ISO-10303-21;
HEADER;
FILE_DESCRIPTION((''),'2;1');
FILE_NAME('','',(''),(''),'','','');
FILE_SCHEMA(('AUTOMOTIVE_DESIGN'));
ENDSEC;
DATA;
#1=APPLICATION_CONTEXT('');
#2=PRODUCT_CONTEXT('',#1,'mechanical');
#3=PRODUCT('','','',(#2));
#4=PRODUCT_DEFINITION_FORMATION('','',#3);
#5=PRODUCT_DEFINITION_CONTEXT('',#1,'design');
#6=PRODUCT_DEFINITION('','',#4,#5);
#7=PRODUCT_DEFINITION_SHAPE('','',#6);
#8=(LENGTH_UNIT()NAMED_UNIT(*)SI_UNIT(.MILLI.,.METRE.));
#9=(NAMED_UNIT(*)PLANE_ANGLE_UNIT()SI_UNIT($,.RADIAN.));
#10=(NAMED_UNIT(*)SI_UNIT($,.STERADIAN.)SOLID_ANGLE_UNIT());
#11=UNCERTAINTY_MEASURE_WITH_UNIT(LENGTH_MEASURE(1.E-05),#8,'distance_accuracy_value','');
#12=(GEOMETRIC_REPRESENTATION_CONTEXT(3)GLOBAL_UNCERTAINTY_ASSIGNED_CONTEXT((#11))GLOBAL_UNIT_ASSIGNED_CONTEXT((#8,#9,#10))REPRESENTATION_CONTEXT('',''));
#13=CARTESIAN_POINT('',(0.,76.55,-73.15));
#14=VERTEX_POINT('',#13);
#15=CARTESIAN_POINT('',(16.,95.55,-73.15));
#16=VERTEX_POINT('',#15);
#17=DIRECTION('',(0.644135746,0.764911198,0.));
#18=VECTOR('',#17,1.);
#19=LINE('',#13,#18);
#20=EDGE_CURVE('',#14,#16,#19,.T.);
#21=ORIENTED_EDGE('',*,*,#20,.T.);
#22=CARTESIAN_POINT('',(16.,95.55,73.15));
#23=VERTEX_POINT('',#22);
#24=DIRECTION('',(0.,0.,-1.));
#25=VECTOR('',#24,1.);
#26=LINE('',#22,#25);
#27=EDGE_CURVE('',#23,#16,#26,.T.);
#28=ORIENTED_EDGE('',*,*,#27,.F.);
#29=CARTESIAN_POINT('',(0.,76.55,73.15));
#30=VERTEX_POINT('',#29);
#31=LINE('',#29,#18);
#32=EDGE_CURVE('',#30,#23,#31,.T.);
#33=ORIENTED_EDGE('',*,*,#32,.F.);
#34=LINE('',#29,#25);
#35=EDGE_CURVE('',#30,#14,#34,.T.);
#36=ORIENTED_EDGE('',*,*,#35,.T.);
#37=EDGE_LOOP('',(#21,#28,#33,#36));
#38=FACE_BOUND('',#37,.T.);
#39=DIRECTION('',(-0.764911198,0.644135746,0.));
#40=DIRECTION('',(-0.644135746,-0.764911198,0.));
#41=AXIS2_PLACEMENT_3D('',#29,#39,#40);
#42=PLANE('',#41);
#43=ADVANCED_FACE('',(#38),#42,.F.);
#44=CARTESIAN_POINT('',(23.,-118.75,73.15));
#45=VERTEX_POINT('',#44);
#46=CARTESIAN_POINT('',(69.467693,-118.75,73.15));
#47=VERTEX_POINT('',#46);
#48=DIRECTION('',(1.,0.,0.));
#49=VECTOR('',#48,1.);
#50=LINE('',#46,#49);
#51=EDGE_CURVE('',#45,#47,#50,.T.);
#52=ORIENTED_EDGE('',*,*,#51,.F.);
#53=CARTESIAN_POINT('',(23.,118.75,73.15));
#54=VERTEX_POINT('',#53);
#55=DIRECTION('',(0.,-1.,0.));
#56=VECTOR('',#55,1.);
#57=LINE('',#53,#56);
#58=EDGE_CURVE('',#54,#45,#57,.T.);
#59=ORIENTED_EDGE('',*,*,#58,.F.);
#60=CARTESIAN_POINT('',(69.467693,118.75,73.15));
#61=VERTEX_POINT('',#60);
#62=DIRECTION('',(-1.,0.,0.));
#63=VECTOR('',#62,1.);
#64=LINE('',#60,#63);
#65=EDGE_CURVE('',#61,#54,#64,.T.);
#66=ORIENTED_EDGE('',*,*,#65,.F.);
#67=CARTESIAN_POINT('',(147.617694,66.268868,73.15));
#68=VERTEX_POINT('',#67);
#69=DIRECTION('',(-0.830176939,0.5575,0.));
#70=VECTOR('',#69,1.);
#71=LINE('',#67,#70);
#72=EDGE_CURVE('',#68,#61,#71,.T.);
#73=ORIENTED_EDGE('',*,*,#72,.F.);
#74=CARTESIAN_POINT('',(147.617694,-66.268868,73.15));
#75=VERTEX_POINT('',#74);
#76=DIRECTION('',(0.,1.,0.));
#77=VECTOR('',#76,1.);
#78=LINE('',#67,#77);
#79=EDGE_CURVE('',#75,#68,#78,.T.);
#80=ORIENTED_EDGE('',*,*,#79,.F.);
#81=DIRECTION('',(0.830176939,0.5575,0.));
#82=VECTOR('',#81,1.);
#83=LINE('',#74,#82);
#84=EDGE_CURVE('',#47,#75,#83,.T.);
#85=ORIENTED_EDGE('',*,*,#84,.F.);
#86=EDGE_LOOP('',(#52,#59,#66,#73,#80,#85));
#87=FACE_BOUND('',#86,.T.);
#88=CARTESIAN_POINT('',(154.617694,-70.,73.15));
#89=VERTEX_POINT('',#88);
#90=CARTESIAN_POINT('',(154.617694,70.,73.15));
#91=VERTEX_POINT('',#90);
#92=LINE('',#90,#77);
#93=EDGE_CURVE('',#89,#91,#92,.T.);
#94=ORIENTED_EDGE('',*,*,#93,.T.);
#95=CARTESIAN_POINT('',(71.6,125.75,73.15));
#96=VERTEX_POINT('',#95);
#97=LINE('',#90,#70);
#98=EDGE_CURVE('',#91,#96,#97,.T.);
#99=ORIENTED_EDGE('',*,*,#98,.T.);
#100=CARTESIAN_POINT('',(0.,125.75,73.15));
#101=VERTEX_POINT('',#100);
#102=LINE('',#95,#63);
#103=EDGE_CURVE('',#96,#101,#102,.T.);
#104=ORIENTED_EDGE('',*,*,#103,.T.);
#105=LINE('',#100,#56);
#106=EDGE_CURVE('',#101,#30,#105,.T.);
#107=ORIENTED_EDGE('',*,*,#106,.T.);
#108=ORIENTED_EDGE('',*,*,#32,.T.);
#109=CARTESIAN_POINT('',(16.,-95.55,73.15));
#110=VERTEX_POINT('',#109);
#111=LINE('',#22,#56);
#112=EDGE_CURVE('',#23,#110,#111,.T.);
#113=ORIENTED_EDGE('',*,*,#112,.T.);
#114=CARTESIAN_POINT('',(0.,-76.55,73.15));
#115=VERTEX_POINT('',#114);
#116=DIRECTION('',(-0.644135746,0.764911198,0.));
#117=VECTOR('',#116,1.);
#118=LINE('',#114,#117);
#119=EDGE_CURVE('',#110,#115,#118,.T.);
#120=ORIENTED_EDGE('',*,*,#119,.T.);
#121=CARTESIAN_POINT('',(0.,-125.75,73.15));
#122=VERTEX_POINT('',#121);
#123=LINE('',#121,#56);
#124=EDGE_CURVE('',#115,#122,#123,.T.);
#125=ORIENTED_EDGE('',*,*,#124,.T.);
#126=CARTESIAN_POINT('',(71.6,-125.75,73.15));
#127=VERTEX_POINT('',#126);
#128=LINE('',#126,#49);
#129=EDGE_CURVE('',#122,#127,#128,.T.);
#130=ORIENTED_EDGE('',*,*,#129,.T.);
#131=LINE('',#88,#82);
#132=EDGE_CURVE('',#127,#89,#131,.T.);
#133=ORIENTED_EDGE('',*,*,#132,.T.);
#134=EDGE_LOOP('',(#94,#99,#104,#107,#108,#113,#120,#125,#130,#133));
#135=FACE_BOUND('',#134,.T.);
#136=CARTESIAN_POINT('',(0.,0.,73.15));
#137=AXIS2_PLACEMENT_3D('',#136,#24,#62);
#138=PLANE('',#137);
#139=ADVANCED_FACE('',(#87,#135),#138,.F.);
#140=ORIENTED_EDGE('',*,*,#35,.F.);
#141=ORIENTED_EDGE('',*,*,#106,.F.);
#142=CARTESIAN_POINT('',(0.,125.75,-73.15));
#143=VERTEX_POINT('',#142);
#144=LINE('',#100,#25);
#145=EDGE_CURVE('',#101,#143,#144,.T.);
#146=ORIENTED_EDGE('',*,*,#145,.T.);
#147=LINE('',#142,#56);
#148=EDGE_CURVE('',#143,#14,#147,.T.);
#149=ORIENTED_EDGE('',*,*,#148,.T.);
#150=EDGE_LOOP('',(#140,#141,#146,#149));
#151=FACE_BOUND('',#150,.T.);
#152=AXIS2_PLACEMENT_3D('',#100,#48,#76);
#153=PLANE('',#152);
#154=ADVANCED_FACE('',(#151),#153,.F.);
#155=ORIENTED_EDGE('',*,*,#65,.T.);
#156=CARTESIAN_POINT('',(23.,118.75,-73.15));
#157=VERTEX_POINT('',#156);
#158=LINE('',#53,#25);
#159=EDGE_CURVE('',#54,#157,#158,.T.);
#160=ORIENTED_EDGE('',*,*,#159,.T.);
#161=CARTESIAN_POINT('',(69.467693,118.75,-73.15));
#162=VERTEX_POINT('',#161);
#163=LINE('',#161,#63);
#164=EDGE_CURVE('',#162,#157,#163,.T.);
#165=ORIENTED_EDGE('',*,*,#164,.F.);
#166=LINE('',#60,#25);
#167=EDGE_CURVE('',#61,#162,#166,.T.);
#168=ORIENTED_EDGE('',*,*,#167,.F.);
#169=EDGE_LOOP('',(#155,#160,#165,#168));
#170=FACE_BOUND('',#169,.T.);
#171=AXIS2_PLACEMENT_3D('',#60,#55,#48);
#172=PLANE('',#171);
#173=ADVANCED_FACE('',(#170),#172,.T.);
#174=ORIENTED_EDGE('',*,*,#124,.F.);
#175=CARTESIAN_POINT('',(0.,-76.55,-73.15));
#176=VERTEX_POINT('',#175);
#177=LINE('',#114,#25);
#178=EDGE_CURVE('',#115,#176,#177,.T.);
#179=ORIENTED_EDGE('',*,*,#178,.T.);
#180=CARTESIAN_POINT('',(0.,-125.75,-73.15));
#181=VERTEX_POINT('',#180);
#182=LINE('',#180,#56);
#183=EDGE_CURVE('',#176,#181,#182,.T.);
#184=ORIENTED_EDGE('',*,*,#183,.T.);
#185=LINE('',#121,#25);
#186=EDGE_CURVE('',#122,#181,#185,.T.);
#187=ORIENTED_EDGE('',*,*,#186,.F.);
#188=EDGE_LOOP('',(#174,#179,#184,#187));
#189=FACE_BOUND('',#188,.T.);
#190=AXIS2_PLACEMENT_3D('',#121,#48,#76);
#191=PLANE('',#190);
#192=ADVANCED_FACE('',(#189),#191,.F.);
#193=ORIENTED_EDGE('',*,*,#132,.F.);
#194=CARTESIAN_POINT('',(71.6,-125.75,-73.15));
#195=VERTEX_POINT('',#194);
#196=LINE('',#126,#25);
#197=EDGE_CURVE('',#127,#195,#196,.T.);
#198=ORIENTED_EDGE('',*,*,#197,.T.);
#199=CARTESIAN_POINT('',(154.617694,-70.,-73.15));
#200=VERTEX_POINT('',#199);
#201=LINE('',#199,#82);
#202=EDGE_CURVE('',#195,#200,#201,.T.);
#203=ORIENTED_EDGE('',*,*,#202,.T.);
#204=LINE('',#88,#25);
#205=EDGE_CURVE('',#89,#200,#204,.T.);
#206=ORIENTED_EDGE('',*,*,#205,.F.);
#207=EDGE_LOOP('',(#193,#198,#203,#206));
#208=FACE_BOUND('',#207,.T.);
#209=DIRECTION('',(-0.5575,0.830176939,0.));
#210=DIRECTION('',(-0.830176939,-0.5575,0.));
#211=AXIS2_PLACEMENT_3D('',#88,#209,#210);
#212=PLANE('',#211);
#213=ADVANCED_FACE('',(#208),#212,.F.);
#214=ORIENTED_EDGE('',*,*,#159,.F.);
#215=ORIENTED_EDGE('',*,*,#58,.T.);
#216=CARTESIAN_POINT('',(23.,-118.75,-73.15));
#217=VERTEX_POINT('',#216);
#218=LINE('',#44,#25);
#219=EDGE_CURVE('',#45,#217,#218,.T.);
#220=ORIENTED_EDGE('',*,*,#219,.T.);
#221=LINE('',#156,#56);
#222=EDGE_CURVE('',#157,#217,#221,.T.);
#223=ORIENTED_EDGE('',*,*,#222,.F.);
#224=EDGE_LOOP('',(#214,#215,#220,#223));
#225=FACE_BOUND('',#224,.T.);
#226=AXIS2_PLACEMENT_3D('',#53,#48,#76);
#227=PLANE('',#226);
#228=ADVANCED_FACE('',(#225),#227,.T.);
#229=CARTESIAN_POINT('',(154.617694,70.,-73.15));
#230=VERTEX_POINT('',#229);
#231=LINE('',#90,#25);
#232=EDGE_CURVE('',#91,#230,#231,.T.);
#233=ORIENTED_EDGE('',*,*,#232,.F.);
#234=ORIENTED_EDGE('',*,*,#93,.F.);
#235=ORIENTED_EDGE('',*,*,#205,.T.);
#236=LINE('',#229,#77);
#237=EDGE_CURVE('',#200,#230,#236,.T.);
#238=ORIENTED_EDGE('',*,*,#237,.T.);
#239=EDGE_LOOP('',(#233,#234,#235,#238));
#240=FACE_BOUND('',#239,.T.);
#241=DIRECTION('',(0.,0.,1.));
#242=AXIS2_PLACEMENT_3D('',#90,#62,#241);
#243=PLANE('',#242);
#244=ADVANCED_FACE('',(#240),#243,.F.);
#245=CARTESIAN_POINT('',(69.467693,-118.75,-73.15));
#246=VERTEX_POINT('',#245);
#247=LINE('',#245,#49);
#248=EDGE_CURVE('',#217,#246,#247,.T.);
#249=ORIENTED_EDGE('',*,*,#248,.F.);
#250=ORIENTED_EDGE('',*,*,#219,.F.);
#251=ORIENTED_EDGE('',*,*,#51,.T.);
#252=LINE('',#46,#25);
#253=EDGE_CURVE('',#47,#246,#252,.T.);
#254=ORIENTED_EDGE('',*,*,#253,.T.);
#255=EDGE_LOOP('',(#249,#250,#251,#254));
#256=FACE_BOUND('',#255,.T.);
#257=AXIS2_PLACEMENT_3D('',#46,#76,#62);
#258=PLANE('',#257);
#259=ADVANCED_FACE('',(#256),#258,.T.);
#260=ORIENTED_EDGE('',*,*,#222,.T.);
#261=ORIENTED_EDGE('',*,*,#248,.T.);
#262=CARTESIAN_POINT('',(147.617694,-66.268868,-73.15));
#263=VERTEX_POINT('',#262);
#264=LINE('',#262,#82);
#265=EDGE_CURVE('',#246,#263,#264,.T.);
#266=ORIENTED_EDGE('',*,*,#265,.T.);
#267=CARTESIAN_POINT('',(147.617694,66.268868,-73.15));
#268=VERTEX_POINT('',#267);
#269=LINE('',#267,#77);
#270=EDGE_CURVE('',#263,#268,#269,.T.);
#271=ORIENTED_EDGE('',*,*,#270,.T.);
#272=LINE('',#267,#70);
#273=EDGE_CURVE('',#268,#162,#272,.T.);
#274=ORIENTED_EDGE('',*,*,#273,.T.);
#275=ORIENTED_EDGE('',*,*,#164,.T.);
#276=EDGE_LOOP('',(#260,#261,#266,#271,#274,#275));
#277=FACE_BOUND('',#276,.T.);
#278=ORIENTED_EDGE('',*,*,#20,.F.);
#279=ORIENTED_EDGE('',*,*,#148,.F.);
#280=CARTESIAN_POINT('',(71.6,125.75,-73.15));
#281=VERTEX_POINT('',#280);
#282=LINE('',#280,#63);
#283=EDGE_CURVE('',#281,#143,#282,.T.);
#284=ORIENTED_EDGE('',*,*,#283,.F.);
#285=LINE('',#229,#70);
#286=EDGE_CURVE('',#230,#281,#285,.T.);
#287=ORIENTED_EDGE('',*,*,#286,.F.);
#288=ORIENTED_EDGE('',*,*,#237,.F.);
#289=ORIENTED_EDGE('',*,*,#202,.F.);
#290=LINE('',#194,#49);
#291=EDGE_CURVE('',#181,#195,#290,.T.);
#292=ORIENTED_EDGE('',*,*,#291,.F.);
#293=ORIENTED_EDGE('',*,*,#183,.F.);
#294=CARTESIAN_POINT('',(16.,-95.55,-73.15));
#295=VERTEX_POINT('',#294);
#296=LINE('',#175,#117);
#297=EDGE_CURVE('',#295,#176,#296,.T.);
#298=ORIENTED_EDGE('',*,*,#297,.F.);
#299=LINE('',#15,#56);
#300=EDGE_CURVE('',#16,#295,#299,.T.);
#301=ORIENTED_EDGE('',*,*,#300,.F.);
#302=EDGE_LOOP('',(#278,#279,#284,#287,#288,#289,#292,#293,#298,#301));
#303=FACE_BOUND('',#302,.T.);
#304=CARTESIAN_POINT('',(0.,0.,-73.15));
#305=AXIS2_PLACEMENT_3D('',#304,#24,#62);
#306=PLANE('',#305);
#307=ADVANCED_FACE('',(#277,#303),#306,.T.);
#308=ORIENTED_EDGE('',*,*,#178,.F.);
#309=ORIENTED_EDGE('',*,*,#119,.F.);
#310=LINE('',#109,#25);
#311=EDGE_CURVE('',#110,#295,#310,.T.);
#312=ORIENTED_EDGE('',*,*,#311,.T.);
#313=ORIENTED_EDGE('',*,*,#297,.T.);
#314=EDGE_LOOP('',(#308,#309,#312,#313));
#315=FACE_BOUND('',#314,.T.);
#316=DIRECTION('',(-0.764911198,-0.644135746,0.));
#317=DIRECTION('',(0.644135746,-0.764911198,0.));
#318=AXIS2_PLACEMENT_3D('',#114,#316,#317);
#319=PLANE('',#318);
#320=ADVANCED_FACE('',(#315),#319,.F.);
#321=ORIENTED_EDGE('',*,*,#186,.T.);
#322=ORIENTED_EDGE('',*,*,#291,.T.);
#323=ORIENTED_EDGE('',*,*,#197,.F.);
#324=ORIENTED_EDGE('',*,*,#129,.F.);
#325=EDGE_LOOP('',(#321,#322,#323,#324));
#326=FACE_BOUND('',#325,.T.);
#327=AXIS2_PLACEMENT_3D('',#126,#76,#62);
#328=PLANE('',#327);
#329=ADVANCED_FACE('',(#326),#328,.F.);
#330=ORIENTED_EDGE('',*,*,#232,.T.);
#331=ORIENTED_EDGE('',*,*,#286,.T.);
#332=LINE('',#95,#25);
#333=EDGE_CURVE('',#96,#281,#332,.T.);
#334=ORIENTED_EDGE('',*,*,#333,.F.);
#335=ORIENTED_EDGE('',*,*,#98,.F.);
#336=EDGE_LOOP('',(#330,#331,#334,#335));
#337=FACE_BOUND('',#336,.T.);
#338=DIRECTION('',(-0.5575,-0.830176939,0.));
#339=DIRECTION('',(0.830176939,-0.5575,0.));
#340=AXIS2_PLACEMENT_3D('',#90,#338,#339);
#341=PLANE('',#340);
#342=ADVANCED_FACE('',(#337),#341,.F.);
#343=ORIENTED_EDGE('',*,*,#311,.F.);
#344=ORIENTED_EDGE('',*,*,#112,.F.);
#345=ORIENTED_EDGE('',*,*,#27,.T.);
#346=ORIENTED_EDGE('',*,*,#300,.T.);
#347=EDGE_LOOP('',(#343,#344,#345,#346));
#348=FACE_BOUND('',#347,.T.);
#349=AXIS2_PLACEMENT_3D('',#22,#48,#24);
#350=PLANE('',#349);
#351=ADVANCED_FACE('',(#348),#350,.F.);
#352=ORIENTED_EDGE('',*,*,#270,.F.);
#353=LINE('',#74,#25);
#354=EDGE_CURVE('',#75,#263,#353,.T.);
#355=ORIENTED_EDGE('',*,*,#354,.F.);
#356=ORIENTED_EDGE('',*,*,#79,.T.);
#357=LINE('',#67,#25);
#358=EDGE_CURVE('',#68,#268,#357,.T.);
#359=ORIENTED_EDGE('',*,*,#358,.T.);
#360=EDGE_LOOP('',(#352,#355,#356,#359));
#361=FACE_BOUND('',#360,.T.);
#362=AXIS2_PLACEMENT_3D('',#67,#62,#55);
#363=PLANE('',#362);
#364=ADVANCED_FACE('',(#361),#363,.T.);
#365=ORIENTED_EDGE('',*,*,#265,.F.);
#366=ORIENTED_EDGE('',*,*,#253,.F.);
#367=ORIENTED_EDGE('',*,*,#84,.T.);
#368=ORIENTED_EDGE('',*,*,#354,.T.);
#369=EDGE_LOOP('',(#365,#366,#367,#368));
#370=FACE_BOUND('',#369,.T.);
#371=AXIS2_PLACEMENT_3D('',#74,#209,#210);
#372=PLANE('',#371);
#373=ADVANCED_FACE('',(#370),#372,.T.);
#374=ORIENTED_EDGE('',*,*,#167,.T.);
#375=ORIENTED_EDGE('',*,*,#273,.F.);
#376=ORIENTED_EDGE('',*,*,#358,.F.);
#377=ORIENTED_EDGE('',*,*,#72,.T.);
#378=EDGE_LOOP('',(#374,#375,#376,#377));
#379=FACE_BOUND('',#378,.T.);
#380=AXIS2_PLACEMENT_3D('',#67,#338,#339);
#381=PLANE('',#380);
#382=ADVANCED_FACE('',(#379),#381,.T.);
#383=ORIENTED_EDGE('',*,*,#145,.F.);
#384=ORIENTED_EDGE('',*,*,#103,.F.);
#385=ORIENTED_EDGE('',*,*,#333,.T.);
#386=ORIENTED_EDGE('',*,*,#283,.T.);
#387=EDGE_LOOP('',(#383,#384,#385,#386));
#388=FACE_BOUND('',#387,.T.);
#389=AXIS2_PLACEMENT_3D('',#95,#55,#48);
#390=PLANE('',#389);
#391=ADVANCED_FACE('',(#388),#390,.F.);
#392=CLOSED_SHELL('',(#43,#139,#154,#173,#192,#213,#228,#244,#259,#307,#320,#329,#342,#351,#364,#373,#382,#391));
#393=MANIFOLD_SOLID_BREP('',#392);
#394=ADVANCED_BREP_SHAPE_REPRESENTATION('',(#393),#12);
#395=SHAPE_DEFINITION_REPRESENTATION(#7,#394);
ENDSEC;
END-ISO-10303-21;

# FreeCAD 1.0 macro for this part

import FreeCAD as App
import Part
import Sketcher
from FreeCAD import Vector
Q = App.Units.Quantity


def add_polygon(sketch, points):
    """Adds a closed chain of lines whose ends are joined by coincident constraints."""
    first, n = sketch.GeometryCount, len(points)
    for a, b in zip(points, points[1:] + points[:1]):
        sketch.addGeometry(Part.LineSegment(App.Vector(*a, 0), App.Vector(*b, 0)), False)
    for i in range(n):
        sketch.addConstraint(Sketcher.Constraint("Coincident", first + i, 2, first + (i + 1) % n, 1))

doc = App.newDocument("Part")
params = doc.addObject("Spreadsheet::Sheet", "Params")
for row, (alias, value) in enumerate([
    ("sketch1_height", "140 mm"),
    ("sketch1_length", "100 mm"),
    ("sketch1_width", "71.6 mm"),
    ("sketch1_height2", "49.2 mm"),
    ("sketch1_height3", "191.1 mm"),
    ("pad1_length", "146.3 mm"),
], start=1):
    params.set(f"A{row}", alias)
    params.set(f"B{row}", "=" + value)
    params.setAlias(f"B{row}", alias)

body = doc.addObject("PartDesign::Body", "Body")

# Sketch on XY plane
sketch1 = body.newObject("Sketcher::SketchObject", "Sketch")
sketch1.AttachmentSupport = (doc.getObject("XY_Plane"), [""])
sketch1.MapMode = "FlatFace"
add_polygon(sketch1, [(155, 70), (72, 126), (0, 126), (0, 77), (16, 96), (16, -96), (0, -77), (0, -126), (72, -126), (155, -70)])  # lines 0-9
add_polygon(sketch1, [(69, 119), (148, 66), (148, -66), (69, -119), (23, -119), (23, 119)])  # lines 10-15
sketch1.addConstraint([
    Sketcher.Constraint("Horizontal", 1),
    Sketcher.Constraint("Vertical", 2),
    Sketcher.Constraint("Vertical", 4),
    Sketcher.Constraint("Vertical", 6),
    Sketcher.Constraint("Horizontal", 7),
    Sketcher.Constraint("Vertical", 9),
    Sketcher.Constraint("Vertical", 11),
    Sketcher.Constraint("Horizontal", 13),
    Sketcher.Constraint("Vertical", 14),
    Sketcher.Constraint("Horizontal", 15),
    Sketcher.Constraint("Symmetric", 2, 2, 5, 2, -1, 1),
    Sketcher.Constraint("Symmetric", 1, 2, 6, 2, -1),
    Sketcher.Constraint("Symmetric", 12, 2, 15, 2, -1),
    Sketcher.Constraint("Parallel", 0, 10),
    Sketcher.Constraint("Parallel", 8, 12),
    Sketcher.Constraint("Vertical", 0, 2, 7, 2),
    Sketcher.Constraint("Equal", 3, 5),
    Sketcher.Constraint("Equal", 0, 8),
    Sketcher.Constraint("DistanceY", 9, 1, 9, 2, Q("140 mm")),
    Sketcher.Constraint("Distance", 0, Q("100 mm")),
    Sketcher.Constraint("DistanceX", 1, 2, 1, 1, Q("71.6 mm")),
    Sketcher.Constraint("DistanceY", 2, 2, 2, 1, Q("49.2 mm")),
    Sketcher.Constraint("DistanceY", 4, 2, 4, 1, Q("191.1 mm")),
    Sketcher.Constraint("DistanceY", 14, 1, 14, 2, Q("237.5 mm")),
    Sketcher.Constraint("DistanceX", -1, 1, 3, 2, Q("16 mm")),
    Sketcher.Constraint("DistanceX", -1, 1, 13, 2, Q("23 mm")),
    Sketcher.Constraint("DistanceY", 2, 2, 3, 2, Q("19 mm")),
    Sketcher.Constraint("DistanceX", 10, 2, 9, 2, Q("7 mm")),
    Sketcher.Constraint("DistanceX", 12, 2, 11, 2, Q("78.150001 mm")),
])
sketch1.setExpression("Constraints[34]", "Params.sketch1_height")
sketch1.setExpression("Constraints[35]", "Params.sketch1_length")
sketch1.setExpression("Constraints[36]", "Params.sketch1_width")
sketch1.setExpression("Constraints[37]", "Params.sketch1_height2")
sketch1.setExpression("Constraints[38]", "Params.sketch1_height3")
pad1 = body.newObject("PartDesign::Pad", "Pad")
pad1.Profile = sketch1
pad1.setExpression("Length", "Params.pad1_length")
pad1.Midplane = True

doc.recompute()
